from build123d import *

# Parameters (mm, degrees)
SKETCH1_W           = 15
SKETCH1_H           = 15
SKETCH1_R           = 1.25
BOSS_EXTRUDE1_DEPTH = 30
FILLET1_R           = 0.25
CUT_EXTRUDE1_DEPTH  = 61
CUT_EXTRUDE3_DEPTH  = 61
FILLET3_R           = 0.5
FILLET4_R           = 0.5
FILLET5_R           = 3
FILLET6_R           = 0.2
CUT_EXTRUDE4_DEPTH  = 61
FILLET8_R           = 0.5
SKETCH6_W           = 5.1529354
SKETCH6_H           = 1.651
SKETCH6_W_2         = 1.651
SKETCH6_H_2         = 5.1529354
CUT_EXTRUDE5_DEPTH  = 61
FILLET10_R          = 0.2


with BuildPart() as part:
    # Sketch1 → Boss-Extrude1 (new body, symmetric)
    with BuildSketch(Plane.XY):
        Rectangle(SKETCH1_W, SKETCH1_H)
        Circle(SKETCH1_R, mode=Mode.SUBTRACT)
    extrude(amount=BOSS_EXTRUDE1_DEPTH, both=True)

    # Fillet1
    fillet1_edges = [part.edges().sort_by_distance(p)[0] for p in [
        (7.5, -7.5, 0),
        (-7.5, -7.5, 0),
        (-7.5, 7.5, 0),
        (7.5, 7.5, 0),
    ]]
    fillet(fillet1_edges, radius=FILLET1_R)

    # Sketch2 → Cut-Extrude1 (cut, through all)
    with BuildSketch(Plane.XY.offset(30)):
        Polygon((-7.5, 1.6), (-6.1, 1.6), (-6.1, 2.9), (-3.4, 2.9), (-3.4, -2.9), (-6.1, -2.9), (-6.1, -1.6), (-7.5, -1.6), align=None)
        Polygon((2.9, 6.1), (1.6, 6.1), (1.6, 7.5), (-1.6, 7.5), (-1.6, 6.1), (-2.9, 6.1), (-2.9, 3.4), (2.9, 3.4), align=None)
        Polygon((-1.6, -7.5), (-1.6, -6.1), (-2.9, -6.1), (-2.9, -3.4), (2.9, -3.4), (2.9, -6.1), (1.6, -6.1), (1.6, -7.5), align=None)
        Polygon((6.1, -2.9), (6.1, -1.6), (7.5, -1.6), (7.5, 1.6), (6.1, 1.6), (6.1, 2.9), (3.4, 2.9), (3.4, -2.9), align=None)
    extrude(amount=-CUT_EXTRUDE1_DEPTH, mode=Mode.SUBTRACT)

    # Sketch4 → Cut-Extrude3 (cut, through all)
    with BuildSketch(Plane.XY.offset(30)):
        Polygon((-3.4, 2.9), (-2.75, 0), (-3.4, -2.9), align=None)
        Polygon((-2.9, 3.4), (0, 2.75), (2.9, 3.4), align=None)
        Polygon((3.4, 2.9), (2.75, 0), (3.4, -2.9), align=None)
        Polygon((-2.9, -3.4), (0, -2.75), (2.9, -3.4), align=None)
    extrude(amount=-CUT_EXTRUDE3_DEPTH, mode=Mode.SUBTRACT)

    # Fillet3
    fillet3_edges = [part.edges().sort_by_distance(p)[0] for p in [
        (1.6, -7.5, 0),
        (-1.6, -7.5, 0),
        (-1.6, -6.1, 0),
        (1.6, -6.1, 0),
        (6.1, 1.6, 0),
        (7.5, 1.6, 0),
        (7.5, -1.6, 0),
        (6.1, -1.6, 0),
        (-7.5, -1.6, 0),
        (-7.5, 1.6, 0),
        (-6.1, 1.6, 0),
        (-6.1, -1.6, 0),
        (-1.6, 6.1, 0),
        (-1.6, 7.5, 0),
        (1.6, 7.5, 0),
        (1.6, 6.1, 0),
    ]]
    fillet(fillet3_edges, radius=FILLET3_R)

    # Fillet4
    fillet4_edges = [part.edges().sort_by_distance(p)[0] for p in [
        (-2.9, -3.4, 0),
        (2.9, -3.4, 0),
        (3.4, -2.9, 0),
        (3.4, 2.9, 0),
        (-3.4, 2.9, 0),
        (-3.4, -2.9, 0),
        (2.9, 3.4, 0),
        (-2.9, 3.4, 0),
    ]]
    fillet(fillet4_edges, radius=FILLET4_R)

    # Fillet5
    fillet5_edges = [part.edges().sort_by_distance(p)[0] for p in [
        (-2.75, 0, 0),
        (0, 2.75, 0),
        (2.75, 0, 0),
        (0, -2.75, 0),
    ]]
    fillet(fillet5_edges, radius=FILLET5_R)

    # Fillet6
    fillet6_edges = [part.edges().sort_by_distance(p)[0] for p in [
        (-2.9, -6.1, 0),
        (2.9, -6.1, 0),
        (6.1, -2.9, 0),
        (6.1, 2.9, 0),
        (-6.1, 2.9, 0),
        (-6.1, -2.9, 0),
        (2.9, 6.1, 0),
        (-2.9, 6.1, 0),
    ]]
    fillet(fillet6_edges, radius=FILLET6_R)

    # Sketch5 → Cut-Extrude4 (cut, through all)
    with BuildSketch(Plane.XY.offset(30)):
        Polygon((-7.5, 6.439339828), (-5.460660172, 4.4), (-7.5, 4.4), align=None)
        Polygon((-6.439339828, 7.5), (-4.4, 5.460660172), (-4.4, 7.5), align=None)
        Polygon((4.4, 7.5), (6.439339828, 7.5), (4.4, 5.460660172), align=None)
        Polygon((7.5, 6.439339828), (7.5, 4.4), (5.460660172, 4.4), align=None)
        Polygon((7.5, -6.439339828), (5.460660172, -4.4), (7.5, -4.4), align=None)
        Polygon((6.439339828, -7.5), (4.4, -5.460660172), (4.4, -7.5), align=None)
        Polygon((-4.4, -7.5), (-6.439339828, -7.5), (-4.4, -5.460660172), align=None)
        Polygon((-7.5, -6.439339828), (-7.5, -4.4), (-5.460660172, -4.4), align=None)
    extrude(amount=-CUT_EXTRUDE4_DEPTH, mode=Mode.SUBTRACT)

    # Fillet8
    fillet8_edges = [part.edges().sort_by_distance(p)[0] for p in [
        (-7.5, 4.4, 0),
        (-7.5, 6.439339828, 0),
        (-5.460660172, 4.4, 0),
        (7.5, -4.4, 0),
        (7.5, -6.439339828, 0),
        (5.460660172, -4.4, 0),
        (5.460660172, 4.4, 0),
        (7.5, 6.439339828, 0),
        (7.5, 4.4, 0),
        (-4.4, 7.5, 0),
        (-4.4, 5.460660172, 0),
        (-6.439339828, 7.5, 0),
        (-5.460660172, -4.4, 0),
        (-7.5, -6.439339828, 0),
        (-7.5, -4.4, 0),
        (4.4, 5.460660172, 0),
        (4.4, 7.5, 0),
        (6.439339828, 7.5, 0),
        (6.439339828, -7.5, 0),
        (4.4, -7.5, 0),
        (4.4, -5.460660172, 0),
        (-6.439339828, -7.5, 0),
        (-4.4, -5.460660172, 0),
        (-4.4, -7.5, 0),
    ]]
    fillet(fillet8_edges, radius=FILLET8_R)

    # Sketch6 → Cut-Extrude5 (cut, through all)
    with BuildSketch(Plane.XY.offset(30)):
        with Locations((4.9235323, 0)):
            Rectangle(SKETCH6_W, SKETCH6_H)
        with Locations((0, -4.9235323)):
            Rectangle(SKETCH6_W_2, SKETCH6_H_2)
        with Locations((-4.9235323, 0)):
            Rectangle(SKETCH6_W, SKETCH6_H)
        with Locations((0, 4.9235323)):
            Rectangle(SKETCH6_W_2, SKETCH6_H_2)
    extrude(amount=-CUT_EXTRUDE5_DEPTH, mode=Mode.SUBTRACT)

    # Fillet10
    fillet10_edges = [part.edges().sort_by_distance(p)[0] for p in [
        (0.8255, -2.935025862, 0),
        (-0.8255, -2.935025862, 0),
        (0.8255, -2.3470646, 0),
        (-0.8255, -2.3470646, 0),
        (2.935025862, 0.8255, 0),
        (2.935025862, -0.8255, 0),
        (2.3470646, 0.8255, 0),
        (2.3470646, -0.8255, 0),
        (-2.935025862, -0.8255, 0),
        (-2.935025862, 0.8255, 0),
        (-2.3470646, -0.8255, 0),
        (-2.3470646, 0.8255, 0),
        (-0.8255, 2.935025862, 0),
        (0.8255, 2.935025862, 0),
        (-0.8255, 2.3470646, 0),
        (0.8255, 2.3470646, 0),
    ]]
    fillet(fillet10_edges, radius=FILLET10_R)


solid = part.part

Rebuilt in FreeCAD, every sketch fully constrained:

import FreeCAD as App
import Part
import Sketcher

V = App.Vector
Q = App.Units.Quantity


def edges_at(feature, points):
    """Names of the edges that pass closest to the given points."""
    edges = feature.Shape.Edges
    near = lambda p: min(range(len(edges)), key=lambda i: edges[i].distToShape(Part.Vertex(*p))[0])
    return sorted({f"Edge{near(p) + 1}" for p in points})

doc = App.newDocument("Part")
params = doc.addObject("Spreadsheet::Sheet", "Params")
for row, (alias, value) in enumerate([
    ("sketch1_diameter", "2.5 mm"),
    ("sketch1_width", "15 mm"),
    ("pad1_length", "60 mm"),
    ("fillet_radius", "0.25 mm"),
    ("sketch2_width", "1.4 mm"),
    ("sketch2_width2", "2.7 mm"),
    ("sketch2_width3", "1.3 mm"),
    ("sketch2_width4", "3.2 mm"),
    ("sketch3_width", "5.8 mm"),
    ("fillet2_radius", "0.5 mm"),
    ("fillet3_radius", "0.5 mm"),
    ("fillet4_radius", "3 mm"),
    ("fillet5_radius", "0.2 mm"),
    ("fillet6_radius", "0.5 mm"),
    ("fillet7_radius", "0.2 mm"),
], start=1):
    params.set(f"A{row}", alias)
    params.set(f"B{row}", "=" + value)
    params.setAlias(f"B{row}", alias)

body = doc.addObject("PartDesign::Body", "Body")

sketch1 = doc.addObject("Sketcher::SketchObject", "Sketch")
body.addObject(sketch1)
sketch1.AttachmentSupport = (doc.XY_Plane, [""])
sketch1.MapMode = "FlatFace"
sketch1.addGeometry(Part.LineSegment(V(-7.5, 7.5, 0), V(-7.5, -7.5, 0)), False)
sketch1.addGeometry(Part.LineSegment(V(-7.5, -7.5, 0), V(7.5, -7.5, 0)), False)
sketch1.addGeometry(Part.LineSegment(V(7.5, -7.5, 0), V(7.5, 7.5, 0)), False)
sketch1.addGeometry(Part.LineSegment(V(7.5, 7.5, 0), V(-7.5, 7.5, 0)), False)
sketch1.addGeometry(Part.Circle(V(0, 0, 0), V(0, 0, 1), 1.2), False)
sketch1.addConstraint(Sketcher.Constraint("Coincident", 0, 2, 1, 1))
sketch1.addConstraint(Sketcher.Constraint("Coincident", 1, 2, 2, 1))
sketch1.addConstraint(Sketcher.Constraint("Coincident", 2, 2, 3, 1))
sketch1.addConstraint(Sketcher.Constraint("Coincident", 3, 2, 0, 1))
sketch1.addConstraint(Sketcher.Constraint("Vertical", 0))
sketch1.addConstraint(Sketcher.Constraint("Horizontal", 1))
sketch1.addConstraint(Sketcher.Constraint("Vertical", 2))
sketch1.addConstraint(Sketcher.Constraint("Horizontal", 3))
sketch1.addConstraint(Sketcher.Constraint("Coincident", 4, 3, -1, 1))
sketch1.addConstraint(Sketcher.Constraint("Symmetric", 0, 2, 2, 2, -1, 1))
sketch1.addConstraint(Sketcher.Constraint("Equal", 3, 0))
sketch1.addConstraint(Sketcher.Constraint("Diameter", 4, Q("2.5 mm")))
sketch1.addConstraint(Sketcher.Constraint("DistanceX", 1, 1, 1, 2, Q("15 mm")))
sketch1.setExpression("Constraints[11]", "Params.sketch1_diameter")
sketch1.setExpression("Constraints[12]", "Params.sketch1_width")
pad1 = doc.addObject("PartDesign::Pad", "Pad")
body.addObject(pad1)
pad1.Profile = sketch1
pad1.setExpression("Length", "Params.pad1_length")
pad1.Midplane = True
doc.recompute()

fillet = doc.addObject("PartDesign::Fillet", "Fillet")
body.addObject(fillet)
fillet.Base = (pad1, edges_at(pad1, [
    (7.5, -7.5, 0),
    (-7.5, -7.5, 0),
    (-7.5, 7.5, 0),
    (7.5, 7.5, 0),
]))
fillet.setExpression("Radius", "Params.fillet_radius")

sketch2 = doc.addObject("Sketcher::SketchObject", "Sketch001")
body.addObject(sketch2)
sketch2.AttachmentSupport = (doc.XY_Plane, [""])
sketch2.MapMode = "FlatFace"
sketch2.AttachmentOffset = App.Placement(V(0, 0, 30), App.Rotation())
sketch2.addGeometry(Part.LineSegment(V(-6.1, 1.6, 0), V(-7.5, 1.6, 0)), False)
sketch2.addGeometry(Part.LineSegment(V(-7.5, 1.6, 0), V(-7.5, -1.6, 0)), False)
sketch2.addGeometry(Part.LineSegment(V(-7.5, -1.6, 0), V(-6.1, -1.6, 0)), False)
sketch2.addGeometry(Part.LineSegment(V(-6.1, -1.6, 0), V(-6.1, -2.9, 0)), False)
sketch2.addGeometry(Part.LineSegment(V(-6.1, -2.9, 0), V(-3.4, -2.9, 0)), False)
sketch2.addGeometry(Part.LineSegment(V(-3.4, -2.9, 0), V(-3.4, 2.9, 0)), False)
sketch2.addGeometry(Part.LineSegment(V(-3.4, 2.9, 0), V(-6.1, 2.9, 0)), False)
sketch2.addGeometry(Part.LineSegment(V(-6.1, 2.9, 0), V(-6.1, 1.6, 0)), False)
sketch2.addGeometry(Part.LineSegment(V(2.9, 6.1, 0), V(1.6, 6.1, 0)), False)
sketch2.addGeometry(Part.LineSegment(V(1.6, 6.1, 0), V(1.6, 7.5, 0)), False)
sketch2.addGeometry(Part.LineSegment(V(1.6, 7.5, 0), V(-1.6, 7.5, 0)), False)
sketch2.addGeometry(Part.LineSegment(V(-1.6, 7.5, 0), V(-1.6, 6.1, 0)), False)
sketch2.addGeometry(Part.LineSegment(V(-1.6, 6.1, 0), V(-2.9, 6.1, 0)), False)
sketch2.addGeometry(Part.LineSegment(V(-2.9, 6.1, 0), V(-2.9, 3.4, 0)), False)
sketch2.addGeometry(Part.LineSegment(V(-2.9, 3.4, 0), V(2.9, 3.4, 0)), False)
sketch2.addGeometry(Part.LineSegment(V(2.9, 3.4, 0), V(2.9, 6.1, 0)), False)
sketch2.addGeometry(Part.LineSegment(V(-1.6, -6.1, 0), V(-1.6, -7.5, 0)), False)
sketch2.addGeometry(Part.LineSegment(V(-1.6, -7.5, 0), V(1.6, -7.5, 0)), False)
sketch2.addGeometry(Part.LineSegment(V(1.6, -7.5, 0), V(1.6, -6.1, 0)), False)
sketch2.addGeometry(Part.LineSegment(V(1.6, -6.1, 0), V(2.9, -6.1, 0)), False)
sketch2.addGeometry(Part.LineSegment(V(2.9, -6.1, 0), V(2.9, -3.4, 0)), False)
sketch2.addGeometry(Part.LineSegment(V(2.9, -3.4, 0), V(-2.9, -3.4, 0)), False)
sketch2.addGeometry(Part.LineSegment(V(-2.9, -3.4, 0), V(-2.9, -6.1, 0)), False)
sketch2.addGeometry(Part.LineSegment(V(-2.9, -6.1, 0), V(-1.6, -6.1, 0)), False)
sketch2.addGeometry(Part.LineSegment(V(6.1, -2.9, 0), V(6.1, -1.6, 0)), False)
sketch2.addGeometry(Part.LineSegment(V(6.1, -1.6, 0), V(7.5, -1.6, 0)), False)
sketch2.addGeometry(Part.LineSegment(V(7.5, -1.6, 0), V(7.5, 1.6, 0)), False)
sketch2.addGeometry(Part.LineSegment(V(7.5, 1.6, 0), V(6.1, 1.6, 0)), False)
sketch2.addGeometry(Part.LineSegment(V(6.1, 1.6, 0), V(6.1, 2.9, 0)), False)
sketch2.addGeometry(Part.LineSegment(V(6.1, 2.9, 0), V(3.4, 2.9, 0)), False)
sketch2.addGeometry(Part.LineSegment(V(3.4, 2.9, 0), V(3.4, -2.9, 0)), False)
sketch2.addGeometry(Part.LineSegment(V(3.4, -2.9, 0), V(6.1, -2.9, 0)), False)
sketch2.addConstraint(Sketcher.Constraint("Coincident", 0, 2, 1, 1))
sketch2.addConstraint(Sketcher.Constraint("Coincident", 1, 2, 2, 1))
sketch2.addConstraint(Sketcher.Constraint("Coincident", 2, 2, 3, 1))
sketch2.addConstraint(Sketcher.Constraint("Coincident", 3, 2, 4, 1))
sketch2.addConstraint(Sketcher.Constraint("Coincident", 4, 2, 5, 1))
sketch2.addConstraint(Sketcher.Constraint("Coincident", 5, 2, 6, 1))
sketch2.addConstraint(Sketcher.Constraint("Coincident", 6, 2, 7, 1))
sketch2.addConstraint(Sketcher.Constraint("Coincident", 7, 2, 0, 1))
sketch2.addConstraint(Sketcher.Constraint("Coincident", 8, 2, 9, 1))
sketch2.addConstraint(Sketcher.Constraint("Coincident", 9, 2, 10, 1))
sketch2.addConstraint(Sketcher.Constraint("Coincident", 10, 2, 11, 1))
sketch2.addConstraint(Sketcher.Constraint("Coincident", 11, 2, 12, 1))
sketch2.addConstraint(Sketcher.Constraint("Coincident", 12, 2, 13, 1))
sketch2.addConstraint(Sketcher.Constraint("Coincident", 13, 2, 14, 1))
sketch2.addConstraint(Sketcher.Constraint("Coincident", 14, 2, 15, 1))
sketch2.addConstraint(Sketcher.Constraint("Coincident", 15, 2, 8, 1))
sketch2.addConstraint(Sketcher.Constraint("Coincident", 16, 2, 17, 1))
sketch2.addConstraint(Sketcher.Constraint("Coincident", 17, 2, 18, 1))
sketch2.addConstraint(Sketcher.Constraint("Coincident", 18, 2, 19, 1))
sketch2.addConstraint(Sketcher.Constraint("Coincident", 19, 2, 20, 1))
sketch2.addConstraint(Sketcher.Constraint("Coincident", 20, 2, 21, 1))
sketch2.addConstraint(Sketcher.Constraint("Coincident", 21, 2, 22, 1))
sketch2.addConstraint(Sketcher.Constraint("Coincident", 22, 2, 23, 1))
sketch2.addConstraint(Sketcher.Constraint("Coincident", 23, 2, 16, 1))
sketch2.addConstraint(Sketcher.Constraint("Coincident", 24, 2, 25, 1))
sketch2.addConstraint(Sketcher.Constraint("Coincident", 25, 2, 26, 1))
sketch2.addConstraint(Sketcher.Constraint("Coincident", 26, 2, 27, 1))
sketch2.addConstraint(Sketcher.Constraint("Coincident", 27, 2, 28, 1))
sketch2.addConstraint(Sketcher.Constraint("Coincident", 28, 2, 29, 1))
sketch2.addConstraint(Sketcher.Constraint("Coincident", 29, 2, 30, 1))
sketch2.addConstraint(Sketcher.Constraint("Coincident", 30, 2, 31, 1))
sketch2.addConstraint(Sketcher.Constraint("Coincident", 31, 2, 24, 1))
sketch2.addConstraint(Sketcher.Constraint("Horizontal", 0))
sketch2.addConstraint(Sketcher.Constraint("Vertical", 1))
sketch2.addConstraint(Sketcher.Constraint("Horizontal", 2))
sketch2.addConstraint(Sketcher.Constraint("Vertical", 3))
sketch2.addConstraint(Sketcher.Constraint("Horizontal", 4))
sketch2.addConstraint(Sketcher.Constraint("Vertical", 5))
sketch2.addConstraint(Sketcher.Constraint("Horizontal", 6))
sketch2.addConstraint(Sketcher.Constraint("Vertical", 7))
sketch2.addConstraint(Sketcher.Constraint("Horizontal", 8))
sketch2.addConstraint(Sketcher.Constraint("Vertical", 9))
sketch2.addConstraint(Sketcher.Constraint("Horizontal", 10))
sketch2.addConstraint(Sketcher.Constraint("Vertical", 11))
sketch2.addConstraint(Sketcher.Constraint("Horizontal", 12))
sketch2.addConstraint(Sketcher.Constraint("Vertical", 13))
sketch2.addConstraint(Sketcher.Constraint("Horizontal", 14))
sketch2.addConstraint(Sketcher.Constraint("Vertical", 15))
sketch2.addConstraint(Sketcher.Constraint("Vertical", 16))
sketch2.addConstraint(Sketcher.Constraint("Horizontal", 17))
sketch2.addConstraint(Sketcher.Constraint("Vertical", 18))
sketch2.addConstraint(Sketcher.Constraint("Horizontal", 19))
sketch2.addConstraint(Sketcher.Constraint("Vertical", 20))
sketch2.addConstraint(Sketcher.Constraint("Horizontal", 21))
sketch2.addConstraint(Sketcher.Constraint("Vertical", 22))
sketch2.addConstraint(Sketcher.Constraint("Horizontal", 23))
sketch2.addConstraint(Sketcher.Constraint("Vertical", 24))
sketch2.addConstraint(Sketcher.Constraint("Horizontal", 25))
sketch2.addConstraint(Sketcher.Constraint("Vertical", 26))
sketch2.addConstraint(Sketcher.Constraint("Horizontal", 27))
sketch2.addConstraint(Sketcher.Constraint("Vertical", 28))
sketch2.addConstraint(Sketcher.Constraint("Horizontal", 29))
sketch2.addConstraint(Sketcher.Constraint("Vertical", 30))
sketch2.addConstraint(Sketcher.Constraint("Horizontal", 31))
sketch2.addConstraint(Sketcher.Constraint("Symmetric", 9, 2, 16, 2, -1, 1))
sketch2.addConstraint(Sketcher.Constraint("Symmetric", 11, 2, 18, 2, -1, 1))
sketch2.addConstraint(Sketcher.Constraint("Symmetric", 13, 2, 20, 2, -1, 1))
sketch2.addConstraint(Sketcher.Constraint("Symmetric", 15, 2, 22, 2, -1, 1))
sketch2.addConstraint(Sketcher.Constraint("Symmetric", 7, 2, 24, 2, -1, 1))
sketch2.addConstraint(Sketcher.Constraint("Symmetric", 1, 2, 26, 2, -1, 1))
sketch2.addConstraint(Sketcher.Constraint("Symmetric", 3, 2, 28, 2, -1, 1))
sketch2.addConstraint(Sketcher.Constraint("Symmetric", 5, 2, 30, 2, -1, 1))
sketch2.addConstraint(Sketcher.Constraint("Symmetric", 8, 2, 11, 2, -2))
sketch2.addConstraint(Sketcher.Constraint("Symmetric", 2, 2, 24, 2, -2))
sketch2.addConstraint(Sketcher.Constraint("Horizontal", 6, 2, 28, 2))
sketch2.addConstraint(Sketcher.Constraint("Vertical", 15, 2, 19, 2))
sketch2.addConstraint(Sketcher.Constraint("Equal", 17, 1))
sketch2.addConstraint(Sketcher.Constraint("Equal", 23, 3))
sketch2.addConstraint(Sketcher.Constraint("Equal", 27, 9))
sketch2.addConstraint(Sketcher.Constraint("Equal", 31, 13))
sketch2.addConstraint(Sketcher.Constraint("DistanceX", 0, 2, 0, 1, Q("1.4 mm")))
sketch2.addConstraint(Sketcher.Constraint("DistanceX", 4, 1, 4, 2, Q("2.7 mm")))
sketch2.addConstraint(Sketcher.Constraint("DistanceX", 8, 2, 8, 1, Q("1.3 mm")))
sketch2.addConstraint(Sketcher.Constraint("DistanceX", 10, 2, 10, 1, Q("3.2 mm")))
sketch2.addConstraint(Sketcher.Constraint("DistanceX", 5, 2, 8, 2, Q("5 mm")))
sketch2.addConstraint(Sketcher.Constraint("DistanceY", 4, 2, 8, 2, Q("9 mm")))
sketch2.setExpression("Constraints[80]", "Params.sketch2_width")
sketch2.setExpression("Constraints[81]", "Params.sketch2_width2")
sketch2.setExpression("Constraints[82]", "Params.sketch2_width3")
sketch2.setExpression("Constraints[83]", "Params.sketch2_width4")
pocket1 = doc.addObject("PartDesign::Pocket", "Pocket")
body.addObject(pocket1)
pocket1.Profile = sketch2
pocket1.Type = "ThroughAll"

sketch3 = doc.addObject("Sketcher::SketchObject", "Sketch002")
body.addObject(sketch3)
sketch3.AttachmentSupport = (doc.XY_Plane, [""])
sketch3.MapMode = "FlatFace"
sketch3.AttachmentOffset = App.Placement(V(0, 0, 30), App.Rotation())
sketch3.addGeometry(Part.LineSegment(V(-2.8, 0, 0), V(-3.4, 2.9, 0)), False)
sketch3.addGeometry(Part.LineSegment(V(-3.4, 2.9, 0), V(-3.4, -2.9, 0)), False)
sketch3.addGeometry(Part.LineSegment(V(-3.4, -2.9, 0), V(-2.8, 0, 0)), False)
sketch3.addGeometry(Part.LineSegment(V(-2.9, 3.4, 0), V(0, 2.8, 0)), False)
sketch3.addGeometry(Part.LineSegment(V(0, 2.8, 0), V(2.9, 3.4, 0)), False)
sketch3.addGeometry(Part.LineSegment(V(2.9, 3.4, 0), V(-2.9, 3.4, 0)), False)
sketch3.addGeometry(Part.LineSegment(V(3.4, 2.9, 0), V(2.8, 0, 0)), False)
sketch3.addGeometry(Part.LineSegment(V(2.8, 0, 0), V(3.4, -2.9, 0)), False)
sketch3.addGeometry(Part.LineSegment(V(3.4, -2.9, 0), V(3.4, 2.9, 0)), False)
sketch3.addGeometry(Part.LineSegment(V(0, -2.8, 0), V(-2.9, -3.4, 0)), False)
sketch3.addGeometry(Part.LineSegment(V(-2.9, -3.4, 0), V(2.9, -3.4, 0)), False)
sketch3.addGeometry(Part.LineSegment(V(2.9, -3.4, 0), V(0, -2.8, 0)), False)
sketch3.addConstraint(Sketcher.Constraint("Coincident", 0, 2, 1, 1))
sketch3.addConstraint(Sketcher.Constraint("Coincident", 1, 2, 2, 1))
sketch3.addConstraint(Sketcher.Constraint("Coincident", 2, 2, 0, 1))
sketch3.addConstraint(Sketcher.Constraint("Coincident", 3, 2, 4, 1))
sketch3.addConstraint(Sketcher.Constraint("Coincident", 4, 2, 5, 1))
sketch3.addConstraint(Sketcher.Constraint("Coincident", 5, 2, 3, 1))
sketch3.addConstraint(Sketcher.Constraint("Coincident", 6, 2, 7, 1))
sketch3.addConstraint(Sketcher.Constraint("Coincident", 7, 2, 8, 1))
sketch3.addConstraint(Sketcher.Constraint("Coincident", 8, 2, 6, 1))
sketch3.addConstraint(Sketcher.Constraint("Coincident", 9, 2, 10, 1))
sketch3.addConstraint(Sketcher.Constraint("Coincident", 10, 2, 11, 1))
sketch3.addConstraint(Sketcher.Constraint("Coincident", 11, 2, 9, 1))
sketch3.addConstraint(Sketcher.Constraint("Vertical", 1))
sketch3.addConstraint(Sketcher.Constraint("Horizontal", 5))
sketch3.addConstraint(Sketcher.Constraint("Vertical", 8))
sketch3.addConstraint(Sketcher.Constraint("Horizontal", 10))
sketch3.addConstraint(Sketcher.Constraint("Symmetric", 2, 2, 6, 2, -1, 1))
sketch3.addConstraint(Sketcher.Constraint("Symmetric", 0, 2, 7, 2, -1, 1))
sketch3.addConstraint(Sketcher.Constraint("Symmetric", 4, 2, 9, 2, -1, 1))
sketch3.addConstraint(Sketcher.Constraint("Symmetric", 3, 2, 11, 2, -1, 1))
sketch3.addConstraint(Sketcher.Constraint("PointOnObject", 2, 2, -1))
sketch3.addConstraint(Sketcher.Constraint("PointOnObject", 3, 2, -2))
sketch3.addConstraint(Sketcher.Constraint("Perpendicular", 2, 3))
sketch3.addConstraint(Sketcher.Constraint("Perpendicular", 0, 4))
sketch3.addConstraint(Sketcher.Constraint("Perpendicular", 3, 6))
sketch3.addConstraint(Sketcher.Constraint("Perpendicular", 6, 11))
sketch3.addConstraint(Sketcher.Constraint("Horizontal", 1, 2, 7, 2))
sketch3.addConstraint(Sketcher.Constraint("Equal", 10, 1))
sketch3.addConstraint(Sketcher.Constraint("DistanceX", 5, 2, 5, 1, Q("5.8 mm")))
sketch3.addConstraint(Sketcher.Constraint("DistanceX", 0, 2, -1, 1, Q("3.4 mm")))
sketch3.addConstraint(Sketcher.Constraint("DistanceY", -1, 1, 4, 2, Q("3.4 mm")))
sketch3.addConstraint(Sketcher.Constraint("DistanceX", 2, 2, 6, 2, Q("5.5 mm")))
sketch3.setExpression("Constraints[28]", "Params.sketch3_width")
pocket2 = doc.addObject("PartDesign::Pocket", "Pocket001")
body.addObject(pocket2)
pocket2.Profile = sketch3
pocket2.Type = "ThroughAll"
doc.recompute()

fillet2 = doc.addObject("PartDesign::Fillet", "Fillet001")
body.addObject(fillet2)
fillet2.Base = (pocket2, edges_at(pocket2, [
    (1.6, -7.5, 0),
    (-1.6, -7.5, 0),
    (-1.6, -6.1, 0),
    (1.6, -6.1, 0),
    (6.1, 1.6, 0),
    (7.5, 1.6, 0),
    (7.5, -1.6, 0),
    (6.1, -1.6, 0),
    (-7.5, -1.6, 0),
    (-7.5, 1.6, 0),
    (-6.1, 1.6, 0),
    (-6.1, -1.6, 0),
    (-1.6, 6.1, 0),
    (-1.6, 7.5, 0),
    (1.6, 7.5, 0),
    (1.6, 6.1, 0),
]))
fillet2.setExpression("Radius", "Params.fillet2_radius")
doc.recompute()

fillet3 = doc.addObject("PartDesign::Fillet", "Fillet002")
body.addObject(fillet3)
fillet3.Base = (fillet2, edges_at(fillet2, [
    (-2.9, -3.4, 0),
    (2.9, -3.4, 0),
    (3.4, -2.9, 0),
    (3.4, 2.9, 0),
    (-3.4, 2.9, 0),
    (-3.4, -2.9, 0),
    (2.9, 3.4, 0),
    (-2.9, 3.4, 0),
]))
fillet3.setExpression("Radius", "Params.fillet3_radius")
doc.recompute()

fillet4 = doc.addObject("PartDesign::Fillet", "Fillet003")
body.addObject(fillet4)
fillet4.Base = (fillet3, edges_at(fillet3, [
    (-2.75, 0, 0),
    (0, 2.75, 0),
    (2.75, 0, 0),
    (0, -2.75, 0),
]))
fillet4.setExpression("Radius", "Params.fillet4_radius")
doc.recompute()

fillet5 = doc.addObject("PartDesign::Fillet", "Fillet004")
body.addObject(fillet5)
fillet5.Base = (fillet4, edges_at(fillet4, [
    (-2.9, -6.1, 0),
    (2.9, -6.1, 0),
    (6.1, -2.9, 0),
    (6.1, 2.9, 0),
    (-6.1, 2.9, 0),
    (-6.1, -2.9, 0),
    (2.9, 6.1, 0),
    (-2.9, 6.1, 0),
]))
fillet5.setExpression("Radius", "Params.fillet5_radius")

sketch4 = doc.addObject("Sketcher::SketchObject", "Sketch003")
body.addObject(sketch4)
sketch4.AttachmentSupport = (doc.XY_Plane, [""])
sketch4.MapMode = "FlatFace"
sketch4.AttachmentOffset = App.Placement(V(0, 0, 30), App.Rotation())
sketch4.addGeometry(Part.LineSegment(V(-5.5, 4.4, 0), V(-7.5, 6.4, 0)), False)
sketch4.addGeometry(Part.LineSegment(V(-7.5, 6.4, 0), V(-7.5, 4.4, 0)), False)
sketch4.addGeometry(Part.LineSegment(V(-7.5, 4.4, 0), V(-5.5, 4.4, 0)), False)
sketch4.addGeometry(Part.LineSegment(V(-6.4, 7.5, 0), V(-4.4, 5.5, 0)), False)
sketch4.addGeometry(Part.LineSegment(V(-4.4, 5.5, 0), V(-4.4, 7.5, 0)), False)
sketch4.addGeometry(Part.LineSegment(V(-4.4, 7.5, 0), V(-6.4, 7.5, 0)), False)
sketch4.addGeometry(Part.LineSegment(V(6.4, 7.5, 0), V(4.4, 7.5, 0)), False)
sketch4.addGeometry(Part.LineSegment(V(4.4, 7.5, 0), V(4.4, 5.5, 0)), False)
sketch4.addGeometry(Part.LineSegment(V(4.4, 5.5, 0), V(6.4, 7.5, 0)), False)
sketch4.addGeometry(Part.LineSegment(V(7.5, 4.4, 0), V(7.5, 6.4, 0)), False)
sketch4.addGeometry(Part.LineSegment(V(7.5, 6.4, 0), V(5.5, 4.4, 0)), False)
sketch4.addGeometry(Part.LineSegment(V(5.5, 4.4, 0), V(7.5, 4.4, 0)), False)
sketch4.addGeometry(Part.LineSegment(V(5.5, -4.4, 0), V(7.5, -6.4, 0)), False)
sketch4.addGeometry(Part.LineSegment(V(7.5, -6.4, 0), V(7.5, -4.4, 0)), False)
sketch4.addGeometry(Part.LineSegment(V(7.5, -4.4, 0), V(5.5, -4.4, 0)), False)
sketch4.addGeometry(Part.LineSegment(V(6.4, -7.5, 0), V(4.4, -5.5, 0)), False)
sketch4.addGeometry(Part.LineSegment(V(4.4, -5.5, 0), V(4.4, -7.5, 0)), False)
sketch4.addGeometry(Part.LineSegment(V(4.4, -7.5, 0), V(6.4, -7.5, 0)), False)
sketch4.addGeometry(Part.LineSegment(V(-6.4, -7.5, 0), V(-4.4, -7.5, 0)), False)
sketch4.addGeometry(Part.LineSegment(V(-4.4, -7.5, 0), V(-4.4, -5.5, 0)), False)
sketch4.addGeometry(Part.LineSegment(V(-4.4, -5.5, 0), V(-6.4, -7.5, 0)), False)
sketch4.addGeometry(Part.LineSegment(V(-7.5, -4.4, 0), V(-7.5, -6.4, 0)), False)
sketch4.addGeometry(Part.LineSegment(V(-7.5, -6.4, 0), V(-5.5, -4.4, 0)), False)
sketch4.addGeometry(Part.LineSegment(V(-5.5, -4.4, 0), V(-7.5, -4.4, 0)), False)
sketch4.addConstraint(Sketcher.Constraint("Coincident", 0, 2, 1, 1))
sketch4.addConstraint(Sketcher.Constraint("Coincident", 1, 2, 2, 1))
sketch4.addConstraint(Sketcher.Constraint("Coincident", 2, 2, 0, 1))
sketch4.addConstraint(Sketcher.Constraint("Coincident", 3, 2, 4, 1))
sketch4.addConstraint(Sketcher.Constraint("Coincident", 4, 2, 5, 1))
sketch4.addConstraint(Sketcher.Constraint("Coincident", 5, 2, 3, 1))
sketch4.addConstraint(Sketcher.Constraint("Coincident", 6, 2, 7, 1))
sketch4.addConstraint(Sketcher.Constraint("Coincident", 7, 2, 8, 1))
sketch4.addConstraint(Sketcher.Constraint("Coincident", 8, 2, 6, 1))
sketch4.addConstraint(Sketcher.Constraint("Coincident", 9, 2, 10, 1))
sketch4.addConstraint(Sketcher.Constraint("Coincident", 10, 2, 11, 1))
sketch4.addConstraint(Sketcher.Constraint("Coincident", 11, 2, 9, 1))
sketch4.addConstraint(Sketcher.Constraint("Coincident", 12, 2, 13, 1))
sketch4.addConstraint(Sketcher.Constraint("Coincident", 13, 2, 14, 1))
sketch4.addConstraint(Sketcher.Constraint("Coincident", 14, 2, 12, 1))
sketch4.addConstraint(Sketcher.Constraint("Coincident", 15, 2, 16, 1))
sketch4.addConstraint(Sketcher.Constraint("Coincident", 16, 2, 17, 1))
sketch4.addConstraint(Sketcher.Constraint("Coincident", 17, 2, 15, 1))
sketch4.addConstraint(Sketcher.Constraint("Coincident", 18, 2, 19, 1))
sketch4.addConstraint(Sketcher.Constraint("Coincident", 19, 2, 20, 1))
sketch4.addConstraint(Sketcher.Constraint("Coincident", 20, 2, 18, 1))
sketch4.addConstraint(Sketcher.Constraint("Coincident", 21, 2, 22, 1))
sketch4.addConstraint(Sketcher.Constraint("Coincident", 22, 2, 23, 1))
sketch4.addConstraint(Sketcher.Constraint("Coincident", 23, 2, 21, 1))
sketch4.addConstraint(Sketcher.Constraint("Vertical", 1))
sketch4.addConstraint(Sketcher.Constraint("Horizontal", 2))
sketch4.addConstraint(Sketcher.Constraint("Vertical", 4))
sketch4.addConstraint(Sketcher.Constraint("Horizontal", 5))
sketch4.addConstraint(Sketcher.Constraint("Horizontal", 6))
sketch4.addConstraint(Sketcher.Constraint("Vertical", 7))
sketch4.addConstraint(Sketcher.Constraint("Vertical", 9))
sketch4.addConstraint(Sketcher.Constraint("Horizontal", 11))
sketch4.addConstraint(Sketcher.Constraint("Vertical", 13))
sketch4.addConstraint(Sketcher.Constraint("Horizontal", 14))
sketch4.addConstraint(Sketcher.Constraint("Vertical", 16))
sketch4.addConstraint(Sketcher.Constraint("Horizontal", 17))
sketch4.addConstraint(Sketcher.Constraint("Horizontal", 18))
sketch4.addConstraint(Sketcher.Constraint("Vertical", 19))
sketch4.addConstraint(Sketcher.Constraint("Vertical", 21))
sketch4.addConstraint(Sketcher.Constraint("Horizontal", 23))
sketch4.addConstraint(Sketcher.Constraint("Symmetric", 0, 2, 12, 2, -1, 1))
sketch4.addConstraint(Sketcher.Constraint("Symmetric", 2, 2, 14, 2, -1, 1))
sketch4.addConstraint(Sketcher.Constraint("Symmetric", 3, 2, 15, 2, -1, 1))
sketch4.addConstraint(Sketcher.Constraint("Symmetric", 5, 2, 17, 2, -1, 1))
sketch4.addConstraint(Sketcher.Constraint("Symmetric", 6, 2, 18, 2, -1, 1))
sketch4.addConstraint(Sketcher.Constraint("Symmetric", 9, 2, 21, 2, -1, 1))
sketch4.addConstraint(Sketcher.Constraint("Symmetric", 10, 2, 22, 2, -1, 1))
sketch4.addConstraint(Sketcher.Constraint("Symmetric", 4, 2, 6, 2, -2))
sketch4.addConstraint(Sketcher.Constraint("Symmetric", 0, 2, 9, 2, -2))
sketch4.addConstraint(Sketcher.Constraint("Symmetric", 2, 2, 10, 2, -2))
sketch4.addConstraint(Sketcher.Constraint("Parallel", 0, 3))
sketch4.addConstraint(Sketcher.Constraint("Perpendicular", 3, 8))
sketch4.addConstraint(Sketcher.Constraint("Parallel", 8, 10))
sketch4.addConstraint(Sketcher.Constraint("Perpendicular", 15, 20))
sketch4.addConstraint(Sketcher.Constraint("Horizontal", 3, 2, 7, 2))
sketch4.addConstraint(Sketcher.Constraint("Horizontal", 15, 2, 19, 2))
sketch4.addConstraint(Sketcher.Constraint("Equal", 2, 5))
sketch4.addConstraint(Sketcher.Constraint("DistanceX", 0, 2, -1, 1, Q("7.5 mm")))
sketch4.addConstraint(Sketcher.Constraint("DistanceY", -1, 1, 1, 2, Q("4.4 mm")))
sketch4.addConstraint(Sketcher.Constraint("DistanceX", 3, 2, -1, 1, Q("4.4 mm")))
sketch4.addConstraint(Sketcher.Constraint("DistanceY", -1, 1, 4, 2, Q("7.5 mm")))
sketch4.addConstraint(Sketcher.Constraint("DistanceX", 2, 1, 2, 2, Q("2.03934 mm")))
pocket3 = doc.addObject("PartDesign::Pocket", "Pocket002")
body.addObject(pocket3)
pocket3.Profile = sketch4
pocket3.Type = "ThroughAll"
doc.recompute()

fillet6 = doc.addObject("PartDesign::Fillet", "Fillet005")
body.addObject(fillet6)
fillet6.Base = (pocket3, edges_at(pocket3, [
    (-7.5, 4.4, 0),
    (-7.5, 6.439, 0),
    (-5.461, 4.4, 0),
    (7.5, -4.4, 0),
    (7.5, -6.439, 0),
    (5.461, -4.4, 0),
    (5.461, 4.4, 0),
    (7.5, 6.439, 0),
    (7.5, 4.4, 0),
    (-4.4, 7.5, 0),
    (-4.4, 5.461, 0),
    (-6.439, 7.5, 0),
    (-5.461, -4.4, 0),
    (-7.5, -6.439, 0),
    (-7.5, -4.4, 0),
    (4.4, 5.461, 0),
    (4.4, 7.5, 0),
    (6.439, 7.5, 0),
    (6.439, -7.5, 0),
    (4.4, -7.5, 0),
    (4.4, -5.461, 0),
    (-6.439, -7.5, 0),
    (-4.4, -5.461, 0),
    (-4.4, -7.5, 0),
]))
fillet6.setExpression("Radius", "Params.fillet6_radius")

sketch5 = doc.addObject("Sketcher::SketchObject", "Sketch004")
body.addObject(sketch5)
sketch5.AttachmentSupport = (doc.XY_Plane, [""])
sketch5.MapMode = "FlatFace"
sketch5.AttachmentOffset = App.Placement(V(0, 0, 30), App.Rotation())
sketch5.addGeometry(Part.LineSegment(V(2.3, 0.8, 0), V(2.3, -0.8, 0)), False)
sketch5.addGeometry(Part.LineSegment(V(2.3, -0.8, 0), V(7.5, -0.8, 0)), False)
sketch5.addGeometry(Part.LineSegment(V(7.5, -0.8, 0), V(7.5, 0.8, 0)), False)
sketch5.addGeometry(Part.LineSegment(V(7.5, 0.8, 0), V(2.3, 0.8, 0)), False)
sketch5.addGeometry(Part.LineSegment(V(-0.8, -2.3, 0), V(-0.8, -7.5, 0)), False)
sketch5.addGeometry(Part.LineSegment(V(-0.8, -7.5, 0), V(0.8, -7.5, 0)), False)
sketch5.addGeometry(Part.LineSegment(V(0.8, -7.5, 0), V(0.8, -2.3, 0)), False)
sketch5.addGeometry(Part.LineSegment(V(0.8, -2.3, 0), V(-0.8, -2.3, 0)), False)
sketch5.addGeometry(Part.LineSegment(V(-7.5, 0.8, 0), V(-7.5, -0.8, 0)), False)
sketch5.addGeometry(Part.LineSegment(V(-7.5, -0.8, 0), V(-2.3, -0.8, 0)), False)
sketch5.addGeometry(Part.LineSegment(V(-2.3, -0.8, 0), V(-2.3, 0.8, 0)), False)
sketch5.addGeometry(Part.LineSegment(V(-2.3, 0.8, 0), V(-7.5, 0.8, 0)), False)
sketch5.addGeometry(Part.LineSegment(V(-0.8, 7.5, 0), V(-0.8, 2.3, 0)), False)
sketch5.addGeometry(Part.LineSegment(V(-0.8, 2.3, 0), V(0.8, 2.3, 0)), False)
sketch5.addGeometry(Part.LineSegment(V(0.8, 2.3, 0), V(0.8, 7.5, 0)), False)
sketch5.addGeometry(Part.LineSegment(V(0.8, 7.5, 0), V(-0.8, 7.5, 0)), False)
sketch5.addConstraint(Sketcher.Constraint("Coincident", 0, 2, 1, 1))
sketch5.addConstraint(Sketcher.Constraint("Coincident", 1, 2, 2, 1))
sketch5.addConstraint(Sketcher.Constraint("Coincident", 2, 2, 3, 1))
sketch5.addConstraint(Sketcher.Constraint("Coincident", 3, 2, 0, 1))
sketch5.addConstraint(Sketcher.Constraint("Coincident", 4, 2, 5, 1))
sketch5.addConstraint(Sketcher.Constraint("Coincident", 5, 2, 6, 1))
sketch5.addConstraint(Sketcher.Constraint("Coincident", 6, 2, 7, 1))
sketch5.addConstraint(Sketcher.Constraint("Coincident", 7, 2, 4, 1))
sketch5.addConstraint(Sketcher.Constraint("Coincident", 8, 2, 9, 1))
sketch5.addConstraint(Sketcher.Constraint("Coincident", 9, 2, 10, 1))
sketch5.addConstraint(Sketcher.Constraint("Coincident", 10, 2, 11, 1))
sketch5.addConstraint(Sketcher.Constraint("Coincident", 11, 2, 8, 1))
sketch5.addConstraint(Sketcher.Constraint("Coincident", 12, 2, 13, 1))
sketch5.addConstraint(Sketcher.Constraint("Coincident", 13, 2, 14, 1))
sketch5.addConstraint(Sketcher.Constraint("Coincident", 14, 2, 15, 1))
sketch5.addConstraint(Sketcher.Constraint("Coincident", 15, 2, 12, 1))
sketch5.addConstraint(Sketcher.Constraint("Vertical", 0))
sketch5.addConstraint(Sketcher.Constraint("Horizontal", 1))
sketch5.addConstraint(Sketcher.Constraint("Vertical", 2))
sketch5.addConstraint(Sketcher.Constraint("Horizontal", 3))
sketch5.addConstraint(Sketcher.Constraint("Vertical", 4))
sketch5.addConstraint(Sketcher.Constraint("Horizontal", 5))
sketch5.addConstraint(Sketcher.Constraint("Vertical", 6))
sketch5.addConstraint(Sketcher.Constraint("Horizontal", 7))
sketch5.addConstraint(Sketcher.Constraint("Vertical", 8))
sketch5.addConstraint(Sketcher.Constraint("Horizontal", 9))
sketch5.addConstraint(Sketcher.Constraint("Vertical", 10))
sketch5.addConstraint(Sketcher.Constraint("Horizontal", 11))
sketch5.addConstraint(Sketcher.Constraint("Vertical", 12))
sketch5.addConstraint(Sketcher.Constraint("Horizontal", 13))
sketch5.addConstraint(Sketcher.Constraint("Vertical", 14))
sketch5.addConstraint(Sketcher.Constraint("Horizontal", 15))
sketch5.addConstraint(Sketcher.Constraint("Symmetric", 2, 2, 8, 2, -1, 1))
sketch5.addConstraint(Sketcher.Constraint("Symmetric", 0, 2, 10, 2, -1, 1))
sketch5.addConstraint(Sketcher.Constraint("Symmetric", 6, 2, 12, 2, -1, 1))
sketch5.addConstraint(Sketcher.Constraint("Symmetric", 4, 2, 14, 2, -1, 1))
sketch5.addConstraint(Sketcher.Constraint("Horizontal", 1, 2, 8, 2))
sketch5.addConstraint(Sketcher.Constraint("Vertical", 7, 2, 12, 2))
sketch5.addConstraint(Sketcher.Constraint("Equal", 15, 0))
sketch5.addConstraint(Sketcher.Constraint("Equal", 11, 4))
sketch5.addConstraint(Sketcher.Constraint("DistanceX", -1, 1, 1, 2, Q("7.5 mm")))
sketch5.addConstraint(Sketcher.Constraint("DistanceY", 4, 2, -1, 1, Q("7.5 mm")))
sketch5.addConstraint(Sketcher.Constraint("DistanceX", 5, 1, 5, 2, Q("1.651 mm")))
sketch5.addConstraint(Sketcher.Constraint("DistanceX", 1, 1, 1, 2, Q("5.152935 mm")))
pocket4 = doc.addObject("PartDesign::Pocket", "Pocket003")
body.addObject(pocket4)
pocket4.Profile = sketch5
pocket4.Type = "ThroughAll"
doc.recompute()

fillet7 = doc.addObject("PartDesign::Fillet", "Fillet006")
body.addObject(fillet7)
fillet7.Base = (pocket4, edges_at(pocket4, [
    (0.826, -2.935, 0),
    (-0.826, -2.935, 0),
    (0.826, -2.347, 0),
    (-0.826, -2.347, 0),
    (2.935, 0.826, 0),
    (2.935, -0.826, 0),
    (2.347, 0.826, 0),
    (2.347, -0.826, 0),
    (-2.935, -0.826, 0),
    (-2.935, 0.826, 0),
    (-2.347, -0.826, 0),
    (-2.347, 0.826, 0),
    (-0.826, 2.935, 0),
    (0.826, 2.935, 0),
    (-0.826, 2.347, 0),
    (0.826, 2.347, 0),
]))
fillet7.setExpression("Radius", "Params.fillet7_radius")

doc.recompute()
